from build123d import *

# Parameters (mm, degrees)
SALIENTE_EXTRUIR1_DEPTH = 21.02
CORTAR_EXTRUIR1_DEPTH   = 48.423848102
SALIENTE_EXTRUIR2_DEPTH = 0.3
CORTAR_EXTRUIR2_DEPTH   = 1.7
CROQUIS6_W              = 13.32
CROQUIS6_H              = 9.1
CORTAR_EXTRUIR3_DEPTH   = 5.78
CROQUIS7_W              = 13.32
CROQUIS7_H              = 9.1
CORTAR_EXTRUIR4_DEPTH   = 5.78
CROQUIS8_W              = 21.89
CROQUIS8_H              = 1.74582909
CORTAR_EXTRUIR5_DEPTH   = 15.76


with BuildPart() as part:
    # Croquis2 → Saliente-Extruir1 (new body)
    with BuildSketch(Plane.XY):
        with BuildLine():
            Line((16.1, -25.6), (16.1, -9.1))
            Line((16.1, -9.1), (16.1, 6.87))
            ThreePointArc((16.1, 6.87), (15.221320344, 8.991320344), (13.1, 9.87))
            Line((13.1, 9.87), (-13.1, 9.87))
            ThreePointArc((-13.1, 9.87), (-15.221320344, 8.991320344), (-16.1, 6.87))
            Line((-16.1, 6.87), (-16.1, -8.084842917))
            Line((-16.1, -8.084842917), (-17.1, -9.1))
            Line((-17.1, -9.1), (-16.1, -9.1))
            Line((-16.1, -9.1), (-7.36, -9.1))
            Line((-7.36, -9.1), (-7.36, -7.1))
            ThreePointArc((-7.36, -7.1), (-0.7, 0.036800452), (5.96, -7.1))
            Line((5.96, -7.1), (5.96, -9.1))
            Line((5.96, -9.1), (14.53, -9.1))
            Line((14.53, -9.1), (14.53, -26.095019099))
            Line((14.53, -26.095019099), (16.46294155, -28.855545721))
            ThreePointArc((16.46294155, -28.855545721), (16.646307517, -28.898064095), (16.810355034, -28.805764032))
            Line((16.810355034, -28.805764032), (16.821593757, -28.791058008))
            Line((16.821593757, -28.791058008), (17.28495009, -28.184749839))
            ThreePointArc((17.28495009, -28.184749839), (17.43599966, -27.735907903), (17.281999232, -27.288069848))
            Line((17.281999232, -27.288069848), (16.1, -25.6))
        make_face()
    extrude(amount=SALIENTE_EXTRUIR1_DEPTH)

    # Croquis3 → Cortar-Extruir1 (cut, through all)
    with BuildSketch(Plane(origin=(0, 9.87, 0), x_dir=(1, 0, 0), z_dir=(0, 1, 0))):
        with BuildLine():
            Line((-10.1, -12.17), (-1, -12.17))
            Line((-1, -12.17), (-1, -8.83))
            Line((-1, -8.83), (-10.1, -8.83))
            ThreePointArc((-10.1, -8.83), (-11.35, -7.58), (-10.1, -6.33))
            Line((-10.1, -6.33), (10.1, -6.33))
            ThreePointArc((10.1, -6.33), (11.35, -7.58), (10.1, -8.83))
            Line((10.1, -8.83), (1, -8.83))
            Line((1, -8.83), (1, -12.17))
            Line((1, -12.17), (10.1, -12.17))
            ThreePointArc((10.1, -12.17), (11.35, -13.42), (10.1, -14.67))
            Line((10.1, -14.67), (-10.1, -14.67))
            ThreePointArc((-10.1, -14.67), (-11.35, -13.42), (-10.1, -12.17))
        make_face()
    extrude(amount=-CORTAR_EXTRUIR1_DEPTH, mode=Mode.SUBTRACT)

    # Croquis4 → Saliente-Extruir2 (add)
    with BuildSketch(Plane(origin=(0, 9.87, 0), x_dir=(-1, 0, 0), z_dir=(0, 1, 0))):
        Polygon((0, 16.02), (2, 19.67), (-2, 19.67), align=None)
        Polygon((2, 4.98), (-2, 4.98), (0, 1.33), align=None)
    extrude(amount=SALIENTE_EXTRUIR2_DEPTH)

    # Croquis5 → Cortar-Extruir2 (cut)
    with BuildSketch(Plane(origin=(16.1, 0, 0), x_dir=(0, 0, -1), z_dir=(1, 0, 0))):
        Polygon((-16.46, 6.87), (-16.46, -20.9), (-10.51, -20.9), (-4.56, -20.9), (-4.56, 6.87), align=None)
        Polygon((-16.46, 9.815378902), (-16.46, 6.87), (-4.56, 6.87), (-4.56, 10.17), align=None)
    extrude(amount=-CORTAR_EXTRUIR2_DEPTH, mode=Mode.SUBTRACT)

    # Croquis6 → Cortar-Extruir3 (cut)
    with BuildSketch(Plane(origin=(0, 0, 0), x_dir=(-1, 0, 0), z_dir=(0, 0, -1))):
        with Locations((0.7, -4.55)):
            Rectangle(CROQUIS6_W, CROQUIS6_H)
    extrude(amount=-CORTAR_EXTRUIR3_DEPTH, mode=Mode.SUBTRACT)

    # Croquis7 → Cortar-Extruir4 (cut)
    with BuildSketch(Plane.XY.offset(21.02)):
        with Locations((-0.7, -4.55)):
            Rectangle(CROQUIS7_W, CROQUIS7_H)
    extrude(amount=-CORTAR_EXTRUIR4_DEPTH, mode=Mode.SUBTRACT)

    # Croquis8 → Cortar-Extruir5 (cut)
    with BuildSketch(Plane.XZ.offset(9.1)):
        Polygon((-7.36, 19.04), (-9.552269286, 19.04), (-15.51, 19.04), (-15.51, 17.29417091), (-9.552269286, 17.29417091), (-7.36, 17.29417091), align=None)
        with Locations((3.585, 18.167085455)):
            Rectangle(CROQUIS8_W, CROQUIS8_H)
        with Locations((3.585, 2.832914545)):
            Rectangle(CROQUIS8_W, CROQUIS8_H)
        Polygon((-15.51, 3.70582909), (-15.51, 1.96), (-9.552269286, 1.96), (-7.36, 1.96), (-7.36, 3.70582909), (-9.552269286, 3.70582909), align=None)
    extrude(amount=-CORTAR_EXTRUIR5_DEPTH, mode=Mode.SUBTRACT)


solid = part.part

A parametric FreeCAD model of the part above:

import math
import FreeCAD as App
import Part
import Sketcher
from FreeCAD import Vector
Q = App.Units.Quantity

doc = App.newDocument("Part")
params = doc.addObject("Spreadsheet::Sheet", "Params")
for row, (alias, value) in enumerate([
    ("sketch1_radius", "3 mm"),
    ("sketch1_height", "2 mm"),
    ("sketch1_width", "26.2 mm"),
    ("sketch1_width2", "9.74 mm"),
    ("sketch1_width3", "8.57 mm"),
    ("pad1_length", "21.02 mm"),
    ("sketch2_radius", "1.25 mm"),
    ("sketch2_width", "9.1 mm"),
    ("sketch2_width2", "20.2 mm"),
    ("sketch2_height", "3.34 mm"),
    ("sketch3_width", "4 mm"),
    ("pad2_length", "0.3 mm"),
    ("sketch4_height", "11.9 mm"),
    ("sketch4_width", "31.07 mm"),
    ("pocket2_length", "1.7 mm"),
    ("sketch5_height", "9.1 mm"),
    ("sketch5_width", "13.32 mm"),
    ("pocket3_length", "5.78 mm"),
    ("sketch6_height", "9.1 mm"),
    ("sketch6_width", "13.32 mm"),
    ("pocket4_length", "5.78 mm"),
    ("sketch7_width", "30.04 mm"),
    ("pocket5_length", "15.76 mm"),
], start=1):
    params.set(f"A{row}", alias)
    params.set(f"B{row}", "=" + value)
    params.setAlias(f"B{row}", alias)

body = doc.addObject("PartDesign::Body", "Body")

# Sketch on XY plane
sketch1 = doc.addObject("Sketcher::SketchObject", "Sketch")
body.addObject(sketch1)
sketch1.AttachmentSupport = (doc.XY_Plane, [""])
sketch1.MapMode = "FlatFace"
sketch1.addGeometry([
    Part.LineSegment(Vector(16.1, -25.6, 0), Vector(16.1, 6.87, 0)),  # 0
    Part.ArcOfCircle(Part.Circle(Vector(13.1, 6.87, 0), Vector(0, 0, 1), 3), math.radians(0), math.radians(90)),  # 1
    Part.LineSegment(Vector(13.1, 9.87, 0), Vector(-13.1, 9.87, 0)),  # 2
    Part.ArcOfCircle(Part.Circle(Vector(-13.1, 6.87, 0), Vector(0, 0, 1), 3), math.radians(90), math.radians(180)),  # 3
    Part.LineSegment(Vector(-16.1, 6.87, 0), Vector(-16.1, -8.085, 0)),  # 4
    Part.LineSegment(Vector(-16.1, -8.085, 0), Vector(-17.1, -9.1, 0)),  # 5
    Part.LineSegment(Vector(-17.1, -9.1, 0), Vector(-7.36, -9.1, 0)),  # 6
    Part.LineSegment(Vector(-7.36, -9.1, 0), Vector(-7.36, -7.1, 0)),  # 7
    Part.ArcOfCircle(Part.Circle(Vector(-0.7, -6.639, 0), Vector(0, 0, 1), 6.676), math.radians(-4), math.radians(184)),  # 8
    Part.LineSegment(Vector(5.96, -7.1, 0), Vector(5.96, -9.1, 0)),  # 9
    Part.LineSegment(Vector(5.96, -9.1, 0), Vector(14.53, -9.1, 0)),  # 10
    Part.LineSegment(Vector(14.53, -9.1, 0), Vector(14.53, -26.095, 0)),  # 11
    Part.LineSegment(Vector(14.53, -26.095, 0), Vector(16.463, -28.856, 0)),  # 12
    Part.ArcOfCircle(Part.Circle(Vector(16.609, -28.641, 0), Vector(0, 0, 1), 0.26), math.radians(-124), math.radians(-39)),  # 13
    Part.LineSegment(Vector(16.81, -28.806, 0), Vector(16.822, -28.791, 0)),  # 14
    Part.LineSegment(Vector(16.822, -28.791, 0), Vector(17.285, -28.185, 0)),  # 15
    Part.ArcOfCircle(Part.Circle(Vector(16.701, -27.738, 0), Vector(0, 0, 1), 0.735), math.radians(-37), math.radians(38)),  # 16
    Part.LineSegment(Vector(17.282, -27.288, 0), Vector(16.1, -25.6, 0)),  # 17
], False)
sketch1.addConstraint([
    Sketcher.Constraint("Tangent", 0, 2, 1, 1),
    Sketcher.Constraint("Tangent", 1, 2, 2, 1),
    Sketcher.Constraint("Tangent", 2, 2, 3, 1),
    Sketcher.Constraint("Tangent", 3, 2, 4, 1),
    Sketcher.Constraint("Coincident", 4, 2, 5, 1),
    Sketcher.Constraint("Coincident", 5, 2, 6, 1),
    Sketcher.Constraint("Coincident", 6, 2, 7, 1),
    Sketcher.Constraint("Coincident", 7, 2, 8, 2),
    Sketcher.Constraint("Coincident", 8, 1, 9, 1),
    Sketcher.Constraint("Coincident", 9, 2, 10, 1),
    Sketcher.Constraint("Coincident", 10, 2, 11, 1),
    Sketcher.Constraint("Coincident", 11, 2, 12, 1),
    Sketcher.Constraint("Coincident", 12, 2, 13, 1),
    Sketcher.Constraint("Coincident", 13, 2, 14, 1),
    Sketcher.Constraint("Coincident", 14, 2, 15, 1),
    Sketcher.Constraint("Tangent", 15, 2, 16, 1),
    Sketcher.Constraint("Coincident", 16, 2, 17, 1),
    Sketcher.Constraint("Coincident", 17, 2, 0, 1),
    Sketcher.Constraint("Vertical", 0),
    Sketcher.Constraint("Horizontal", 2),
    Sketcher.Constraint("Vertical", 4),
    Sketcher.Constraint("Horizontal", 6),
    Sketcher.Constraint("Vertical", 7),
    Sketcher.Constraint("Vertical", 9),
    Sketcher.Constraint("Horizontal", 10),
    Sketcher.Constraint("Vertical", 11),
    Sketcher.Constraint("Equal", 1, 3),
    Sketcher.Constraint("Parallel", 14, 15),
    Sketcher.Constraint("Parallel", 12, 17),
    Sketcher.Constraint("Horizontal", 7, 2, 8, 1),
    Sketcher.Constraint("Horizontal", 6, 2, 9, 2),
    Sketcher.Constraint("Radius", 1, 3.0),
    Sketcher.Constraint("DistanceY", 7, 1, 7, 2, 2.0),
    Sketcher.Constraint("Angle", 12, Q("-55 deg")),
    Sketcher.Constraint("DistanceX", 2, 2, 2, 1, 26.2),
    Sketcher.Constraint("DistanceX", 5, 2, 4, 2, 1.0),
    Sketcher.Constraint("DistanceX", 6, 1, 6, 2, 9.74),
    Sketcher.Constraint("DistanceX", 10, 1, 10, 2, 8.57),
    Sketcher.Constraint("DistanceY", 0, 1, 0, 2, 32.47),
    Sketcher.Constraint("DistanceX", -1, 1, 1, 3, 13.1),
    Sketcher.Constraint("DistanceX", 8, 3, -1, 1, 0.7),
    Sketcher.Constraint("DistanceY", 5, 2, -1, 1, 9.1),
    Sketcher.Constraint("DistanceY", 17, 2, -1, 1, 25.6),
    Sketcher.Constraint("DistanceX", -1, 1, 16, 2, 17.281999),
    Sketcher.Constraint("Radius", 8, 6.675927),
    Sketcher.Constraint("Radius", 13, 0.260147),
    Sketcher.Constraint("Radius", 16, 0.735204),
    Sketcher.Constraint("DistanceY", 12, 2, 13, 3, 0.214999),
    Sketcher.Constraint("DistanceY", 11, 2, 11, 1, 16.995019),
    Sketcher.Constraint("DistanceX", -1, 1, 16, 3, 16.7008),
    Sketcher.Constraint("Distance", 5, 1.424972),
    Sketcher.Constraint("Distance", 12, 3.369981),
    Sketcher.Constraint("Distance", 14, 0.018509),
    Sketcher.Constraint("Distance", 15, 0.763092),
])
sketch1.setExpression("Constraints[31]", "Params.sketch1_radius")
sketch1.setExpression("Constraints[32]", "Params.sketch1_height")
sketch1.setExpression("Constraints[34]", "Params.sketch1_width")
sketch1.setExpression("Constraints[36]", "Params.sketch1_width2")
sketch1.setExpression("Constraints[37]", "Params.sketch1_width3")
pad1 = doc.addObject("PartDesign::Pad", "Pad")
body.addObject(pad1)
pad1.Profile = sketch1
pad1.setExpression("Length", "Params.pad1_length")

# Sketch on XZ plane
sketch2 = doc.addObject("Sketcher::SketchObject", "Sketch001")
body.addObject(sketch2)
sketch2.AttachmentSupport = (doc.XZ_Plane, [""])
sketch2.MapMode = "FlatFace"
sketch2.AttachmentOffset = App.Placement(Vector(0, 0, -9.87), App.Rotation())
sketch2.addGeometry([
    Part.LineSegment(Vector(-1, 12.2, 0), Vector(-10.1, 12.2, 0)),  # 0
    Part.ArcOfCircle(Part.Circle(Vector(-10.1, 13.4, 0), Vector(0, 0, 1), 1.2), math.radians(90), math.radians(270)),  # 1
    Part.LineSegment(Vector(-10.1, 14.7, 0), Vector(10.1, 14.7, 0)),  # 2
    Part.ArcOfCircle(Part.Circle(Vector(10.1, 13.4, 0), Vector(0, 0, 1), 1.2), math.radians(-90), math.radians(90)),  # 3
    Part.LineSegment(Vector(10.1, 12.2, 0), Vector(1, 12.2, 0)),  # 4
    Part.LineSegment(Vector(1, 12.2, 0), Vector(1, 8.8, 0)),  # 5
    Part.LineSegment(Vector(1, 8.8, 0), Vector(10.1, 8.8, 0)),  # 6
    Part.ArcOfCircle(Part.Circle(Vector(10.1, 7.6, 0), Vector(0, 0, 1), 1.2), math.radians(-90), math.radians(90)),  # 7
    Part.LineSegment(Vector(10.1, 6.3, 0), Vector(-10.1, 6.3, 0)),  # 8
    Part.ArcOfCircle(Part.Circle(Vector(-10.1, 7.6, 0), Vector(0, 0, 1), 1.2), math.radians(90), math.radians(270)),  # 9
    Part.LineSegment(Vector(-10.1, 8.8, 0), Vector(-1, 8.8, 0)),  # 10
    Part.LineSegment(Vector(-1, 8.8, 0), Vector(-1, 12.2, 0)),  # 11
], False)
sketch2.addConstraint([
    Sketcher.Constraint("Tangent", 0, 2, 1, 2),
    Sketcher.Constraint("Tangent", 1, 1, 2, 1),
    Sketcher.Constraint("Tangent", 2, 2, 3, 2),
    Sketcher.Constraint("Tangent", 3, 1, 4, 1),
    Sketcher.Constraint("Coincident", 4, 2, 5, 1),
    Sketcher.Constraint("Coincident", 5, 2, 6, 1),
    Sketcher.Constraint("Tangent", 6, 2, 7, 2),
    Sketcher.Constraint("Tangent", 7, 1, 8, 1),
    Sketcher.Constraint("Tangent", 8, 2, 9, 2),
    Sketcher.Constraint("Tangent", 9, 1, 10, 1),
    Sketcher.Constraint("Coincident", 10, 2, 11, 1),
    Sketcher.Constraint("Coincident", 11, 2, 0, 1),
    Sketcher.Constraint("Horizontal", 0),
    Sketcher.Constraint("Horizontal", 2),
    Sketcher.Constraint("Horizontal", 4),
    Sketcher.Constraint("Vertical", 5),
    Sketcher.Constraint("Horizontal", 6),
    Sketcher.Constraint("Horizontal", 8),
    Sketcher.Constraint("Horizontal", 10),
    Sketcher.Constraint("Vertical", 11),
    Sketcher.Constraint("Equal", 1, 3),
    Sketcher.Constraint("Equal", 3, 7),
    Sketcher.Constraint("Equal", 7, 9),
    Sketcher.Constraint("Vertical", 3, 3, 7, 3),
    Sketcher.Constraint("Vertical", 1, 3, 9, 3),
    Sketcher.Constraint("Equal", 0, 4),
    Sketcher.Constraint("Radius", 1, 1.25),
    Sketcher.Constraint("DistanceX", 0, 2, 0, 1, 9.1),
    Sketcher.Constraint("DistanceX", 2, 1, 2, 2, 20.2),
    Sketcher.Constraint("DistanceX", -1, 1, 4, 2, 1.0),
    Sketcher.Constraint("DistanceY", 5, 2, 5, 1, 3.34),
    Sketcher.Constraint("DistanceY", -1, 1, 1, 3, 13.42),
])
sketch2.setExpression("Constraints[26]", "Params.sketch2_radius")
sketch2.setExpression("Constraints[27]", "Params.sketch2_width")
sketch2.setExpression("Constraints[28]", "Params.sketch2_width2")
sketch2.setExpression("Constraints[30]", "Params.sketch2_height")
pocket1 = doc.addObject("PartDesign::Pocket", "Pocket")
body.addObject(pocket1)
pocket1.Profile = sketch2
pocket1.Type = "ThroughAll"
pocket1.Reversed = True

# Sketch on XZ plane
sketch3 = doc.addObject("Sketcher::SketchObject", "Sketch002")
body.addObject(sketch3)
sketch3.AttachmentSupport = (doc.XZ_Plane, [""])
sketch3.MapMode = "FlatFace"
sketch3.AttachmentOffset = App.Placement(Vector(0, 0, -9.87), App.Rotation())
sketch3.addGeometry([
    Part.LineSegment(Vector(0, 16, 0), Vector(-2, 19.7, 0)),  # 0
    Part.LineSegment(Vector(-2, 19.7, 0), Vector(2, 19.7, 0)),  # 1
    Part.LineSegment(Vector(2, 19.7, 0), Vector(0, 16, 0)),  # 2
    Part.LineSegment(Vector(-2, 5, 0), Vector(2, 5, 0)),  # 3
    Part.LineSegment(Vector(2, 5, 0), Vector(0, 1.3, 0)),  # 4
    Part.LineSegment(Vector(0, 1.3, 0), Vector(-2, 5, 0)),  # 5
], False)
sketch3.addConstraint([
    Sketcher.Constraint("Coincident", 0, 2, 1, 1),
    Sketcher.Constraint("Coincident", 1, 2, 2, 1),
    Sketcher.Constraint("Coincident", 2, 2, 0, 1),
    Sketcher.Constraint("Coincident", 3, 2, 4, 1),
    Sketcher.Constraint("Coincident", 4, 2, 5, 1),
    Sketcher.Constraint("Coincident", 5, 2, 3, 1),
    Sketcher.Constraint("Horizontal", 1),
    Sketcher.Constraint("Horizontal", 3),
    Sketcher.Constraint("PointOnObject", 2, 2, -2),
    Sketcher.Constraint("PointOnObject", 4, 2, -2),
    Sketcher.Constraint("Parallel", 2, 4),
    Sketcher.Constraint("Parallel", 0, 5),
    Sketcher.Constraint("Vertical", 1, 2, 3, 2),
    Sketcher.Constraint("Equal", 0, 2),
    Sketcher.Constraint("DistanceX", 1, 1, 1, 2, 4.0),
    Sketcher.Constraint("DistanceY", -1, 1, 0, 2, 19.67),
    Sketcher.Constraint("DistanceY", -1, 1, 2, 2, 16.02),
    Sketcher.Constraint("DistanceY", -1, 1, 3, 2, 4.98),
])
sketch3.setExpression("Constraints[14]", "Params.sketch3_width")
pad2 = doc.addObject("PartDesign::Pad", "Pad001")
body.addObject(pad2)
pad2.Profile = sketch3
pad2.setExpression("Length", "Params.pad2_length")
pad2.Reversed = True

# Sketch on YZ plane
sketch4 = doc.addObject("Sketcher::SketchObject", "Sketch003")
body.addObject(sketch4)
sketch4.AttachmentSupport = (doc.YZ_Plane, [""])
sketch4.MapMode = "FlatFace"
sketch4.AttachmentOffset = App.Placement(Vector(0, 0, 16.1), App.Rotation())
sketch4.addGeometry([
    Part.LineSegment(Vector(-21, 16, 0), Vector(-21, 5, 0)),
    Part.LineSegment(Vector(-21, 5, 0), Vector(10, 5, 0)),
    Part.LineSegment(Vector(10, 5, 0), Vector(10, 16, 0)),
    Part.LineSegment(Vector(10, 16, 0), Vector(-21, 16, 0)),
], False)
sketch4.addConstraint([
    Sketcher.Constraint("Coincident", 0, 2, 1, 1),
    Sketcher.Constraint("Coincident", 1, 2, 2, 1),
    Sketcher.Constraint("Coincident", 2, 2, 3, 1),
    Sketcher.Constraint("Coincident", 3, 2, 0, 1),
    Sketcher.Constraint("Vertical", 0),
    Sketcher.Constraint("Horizontal", 1),
    Sketcher.Constraint("Horizontal", 3),
    Sketcher.Constraint("DistanceY", 0, 2, 0, 1, 11.9),
    Sketcher.Constraint("DistanceX", 1, 1, 1, 2, 31.07),
    Sketcher.Constraint("DistanceX", 0, 2, -1, 1, 20.9),
    Sketcher.Constraint("DistanceY", -1, 1, 0, 2, 4.56),
    Sketcher.Constraint("DistanceX", 3, 2, 3, 1, 30.715379),
])
sketch4.setExpression("Constraints[7]", "Params.sketch4_height")
sketch4.setExpression("Constraints[8]", "Params.sketch4_width")
pocket2 = doc.addObject("PartDesign::Pocket", "Pocket001")
body.addObject(pocket2)
pocket2.Profile = sketch4
pocket2.setExpression("Length", "Params.pocket2_length")

# Sketch on XY plane
sketch5 = doc.addObject("Sketcher::SketchObject", "Sketch004")
body.addObject(sketch5)
sketch5.AttachmentSupport = (doc.XY_Plane, [""])
sketch5.MapMode = "FlatFace"
sketch5.addGeometry([
    Part.LineSegment(Vector(6, 0, 0), Vector(6, -9, 0)),
    Part.LineSegment(Vector(6, -9, 0), Vector(-7, -9, 0)),
    Part.LineSegment(Vector(-7, -9, 0), Vector(-7, 0, 0)),
    Part.LineSegment(Vector(-7, 0, 0), Vector(6, 0, 0)),
], False)
sketch5.addConstraint([
    Sketcher.Constraint("Coincident", 0, 2, 1, 1),
    Sketcher.Constraint("Coincident", 1, 2, 2, 1),
    Sketcher.Constraint("Coincident", 2, 2, 3, 1),
    Sketcher.Constraint("Coincident", 3, 2, 0, 1),
    Sketcher.Constraint("Vertical", 0),
    Sketcher.Constraint("Horizontal", 1),
    Sketcher.Constraint("Vertical", 2),
    Sketcher.Constraint("Horizontal", 3),
    Sketcher.Constraint("PointOnObject", 2, 2, -1),
    Sketcher.Constraint("DistanceY", 0, 2, 0, 1, 9.1),
    Sketcher.Constraint("DistanceX", 1, 2, 1, 1, 13.32),
    Sketcher.Constraint("DistanceX", -1, 1, 0, 2, 5.96),
])
sketch5.setExpression("Constraints[9]", "Params.sketch5_height")
sketch5.setExpression("Constraints[10]", "Params.sketch5_width")
pocket3 = doc.addObject("PartDesign::Pocket", "Pocket002")
body.addObject(pocket3)
pocket3.Profile = sketch5
pocket3.setExpression("Length", "Params.pocket3_length")
pocket3.Reversed = True

# Sketch on XY plane
sketch6 = doc.addObject("Sketcher::SketchObject", "Sketch005")
body.addObject(sketch6)
sketch6.AttachmentSupport = (doc.XY_Plane, [""])
sketch6.MapMode = "FlatFace"
sketch6.AttachmentOffset = App.Placement(Vector(0, 0, 21.02), App.Rotation())
sketch6.addGeometry([
    Part.LineSegment(Vector(-7, 0, 0), Vector(-7, -9, 0)),
    Part.LineSegment(Vector(-7, -9, 0), Vector(6, -9, 0)),
    Part.LineSegment(Vector(6, -9, 0), Vector(6, 0, 0)),
    Part.LineSegment(Vector(6, 0, 0), Vector(-7, 0, 0)),
], False)
sketch6.addConstraint([
    Sketcher.Constraint("Coincident", 0, 2, 1, 1),
    Sketcher.Constraint("Coincident", 1, 2, 2, 1),
    Sketcher.Constraint("Coincident", 2, 2, 3, 1),
    Sketcher.Constraint("Coincident", 3, 2, 0, 1),
    Sketcher.Constraint("Vertical", 0),
    Sketcher.Constraint("Horizontal", 1),
    Sketcher.Constraint("Vertical", 2),
    Sketcher.Constraint("Horizontal", 3),
    Sketcher.Constraint("PointOnObject", 2, 2, -1),
    Sketcher.Constraint("DistanceY", 0, 2, 0, 1, 9.1),
    Sketcher.Constraint("DistanceX", 1, 1, 1, 2, 13.32),
    Sketcher.Constraint("DistanceX", 0, 2, -1, 1, 7.36),
])
sketch6.setExpression("Constraints[9]", "Params.sketch6_height")
sketch6.setExpression("Constraints[10]", "Params.sketch6_width")
pocket4 = doc.addObject("PartDesign::Pocket", "Pocket003")
body.addObject(pocket4)
pocket4.Profile = sketch6
pocket4.setExpression("Length", "Params.pocket4_length")

# Sketch on XZ plane
sketch7 = doc.addObject("Sketcher::SketchObject", "Sketch006")
body.addObject(sketch7)
sketch7.AttachmentSupport = (doc.XZ_Plane, [""])
sketch7.MapMode = "FlatFace"
sketch7.AttachmentOffset = App.Placement(Vector(0, 0, 9.1), App.Rotation())
sketch7.addGeometry([
    Part.LineSegment(Vector(-15.5, 19, 0), Vector(-15.5, 17.3, 0)),  # 0
    Part.LineSegment(Vector(-15.5, 17.3, 0), Vector(14.5, 17.3, 0)),  # 1
    Part.LineSegment(Vector(14.5, 17.3, 0), Vector(14.5, 19, 0)),  # 2
    Part.LineSegment(Vector(14.5, 19, 0), Vector(-15.5, 19, 0)),  # 3
    Part.LineSegment(Vector(14.5, 2, 0), Vector(14.5, 3.7, 0)),  # 4
    Part.LineSegment(Vector(14.5, 3.7, 0), Vector(-15.5, 3.7, 0)),  # 5
    Part.LineSegment(Vector(-15.5, 3.7, 0), Vector(-15.5, 2, 0)),  # 6
    Part.LineSegment(Vector(-15.5, 2, 0), Vector(14.5, 2, 0)),  # 7
], False)
sketch7.addConstraint([
    Sketcher.Constraint("Coincident", 0, 2, 1, 1),
    Sketcher.Constraint("Coincident", 1, 2, 2, 1),
    Sketcher.Constraint("Coincident", 2, 2, 3, 1),
    Sketcher.Constraint("Coincident", 3, 2, 0, 1),
    Sketcher.Constraint("Coincident", 4, 2, 5, 1),
    Sketcher.Constraint("Coincident", 5, 2, 6, 1),
    Sketcher.Constraint("Coincident", 6, 2, 7, 1),
    Sketcher.Constraint("Coincident", 7, 2, 4, 1),
    Sketcher.Constraint("Vertical", 0),
    Sketcher.Constraint("Horizontal", 1),
    Sketcher.Constraint("Vertical", 2),
    Sketcher.Constraint("Horizontal", 3),
    Sketcher.Constraint("Vertical", 4),
    Sketcher.Constraint("Horizontal", 5),
    Sketcher.Constraint("Vertical", 6),
    Sketcher.Constraint("Horizontal", 7),
    Sketcher.Constraint("Vertical", 2, 2, 4, 2),
    Sketcher.Constraint("Vertical", 3, 2, 5, 2),
    Sketcher.Constraint("Equal", 2, 4),
    Sketcher.Constraint("DistanceX", 1, 1, 1, 2, 30.04),
    Sketcher.Constraint("DistanceX", 0, 2, -1, 1, 15.51),
    Sketcher.Constraint("DistanceY", -1, 1, 2, 2, 19.04),
    Sketcher.Constraint("DistanceY", -1, 1, 6, 2, 1.96),
    Sketcher.Constraint("DistanceY", 0, 2, 0, 1, 1.745829),
])
sketch7.setExpression("Constraints[19]", "Params.sketch7_width")
pocket5 = doc.addObject("PartDesign::Pocket", "Pocket004")
body.addObject(pocket5)
pocket5.Profile = sketch7
pocket5.setExpression("Length", "Params.pocket5_length")

doc.recompute()
